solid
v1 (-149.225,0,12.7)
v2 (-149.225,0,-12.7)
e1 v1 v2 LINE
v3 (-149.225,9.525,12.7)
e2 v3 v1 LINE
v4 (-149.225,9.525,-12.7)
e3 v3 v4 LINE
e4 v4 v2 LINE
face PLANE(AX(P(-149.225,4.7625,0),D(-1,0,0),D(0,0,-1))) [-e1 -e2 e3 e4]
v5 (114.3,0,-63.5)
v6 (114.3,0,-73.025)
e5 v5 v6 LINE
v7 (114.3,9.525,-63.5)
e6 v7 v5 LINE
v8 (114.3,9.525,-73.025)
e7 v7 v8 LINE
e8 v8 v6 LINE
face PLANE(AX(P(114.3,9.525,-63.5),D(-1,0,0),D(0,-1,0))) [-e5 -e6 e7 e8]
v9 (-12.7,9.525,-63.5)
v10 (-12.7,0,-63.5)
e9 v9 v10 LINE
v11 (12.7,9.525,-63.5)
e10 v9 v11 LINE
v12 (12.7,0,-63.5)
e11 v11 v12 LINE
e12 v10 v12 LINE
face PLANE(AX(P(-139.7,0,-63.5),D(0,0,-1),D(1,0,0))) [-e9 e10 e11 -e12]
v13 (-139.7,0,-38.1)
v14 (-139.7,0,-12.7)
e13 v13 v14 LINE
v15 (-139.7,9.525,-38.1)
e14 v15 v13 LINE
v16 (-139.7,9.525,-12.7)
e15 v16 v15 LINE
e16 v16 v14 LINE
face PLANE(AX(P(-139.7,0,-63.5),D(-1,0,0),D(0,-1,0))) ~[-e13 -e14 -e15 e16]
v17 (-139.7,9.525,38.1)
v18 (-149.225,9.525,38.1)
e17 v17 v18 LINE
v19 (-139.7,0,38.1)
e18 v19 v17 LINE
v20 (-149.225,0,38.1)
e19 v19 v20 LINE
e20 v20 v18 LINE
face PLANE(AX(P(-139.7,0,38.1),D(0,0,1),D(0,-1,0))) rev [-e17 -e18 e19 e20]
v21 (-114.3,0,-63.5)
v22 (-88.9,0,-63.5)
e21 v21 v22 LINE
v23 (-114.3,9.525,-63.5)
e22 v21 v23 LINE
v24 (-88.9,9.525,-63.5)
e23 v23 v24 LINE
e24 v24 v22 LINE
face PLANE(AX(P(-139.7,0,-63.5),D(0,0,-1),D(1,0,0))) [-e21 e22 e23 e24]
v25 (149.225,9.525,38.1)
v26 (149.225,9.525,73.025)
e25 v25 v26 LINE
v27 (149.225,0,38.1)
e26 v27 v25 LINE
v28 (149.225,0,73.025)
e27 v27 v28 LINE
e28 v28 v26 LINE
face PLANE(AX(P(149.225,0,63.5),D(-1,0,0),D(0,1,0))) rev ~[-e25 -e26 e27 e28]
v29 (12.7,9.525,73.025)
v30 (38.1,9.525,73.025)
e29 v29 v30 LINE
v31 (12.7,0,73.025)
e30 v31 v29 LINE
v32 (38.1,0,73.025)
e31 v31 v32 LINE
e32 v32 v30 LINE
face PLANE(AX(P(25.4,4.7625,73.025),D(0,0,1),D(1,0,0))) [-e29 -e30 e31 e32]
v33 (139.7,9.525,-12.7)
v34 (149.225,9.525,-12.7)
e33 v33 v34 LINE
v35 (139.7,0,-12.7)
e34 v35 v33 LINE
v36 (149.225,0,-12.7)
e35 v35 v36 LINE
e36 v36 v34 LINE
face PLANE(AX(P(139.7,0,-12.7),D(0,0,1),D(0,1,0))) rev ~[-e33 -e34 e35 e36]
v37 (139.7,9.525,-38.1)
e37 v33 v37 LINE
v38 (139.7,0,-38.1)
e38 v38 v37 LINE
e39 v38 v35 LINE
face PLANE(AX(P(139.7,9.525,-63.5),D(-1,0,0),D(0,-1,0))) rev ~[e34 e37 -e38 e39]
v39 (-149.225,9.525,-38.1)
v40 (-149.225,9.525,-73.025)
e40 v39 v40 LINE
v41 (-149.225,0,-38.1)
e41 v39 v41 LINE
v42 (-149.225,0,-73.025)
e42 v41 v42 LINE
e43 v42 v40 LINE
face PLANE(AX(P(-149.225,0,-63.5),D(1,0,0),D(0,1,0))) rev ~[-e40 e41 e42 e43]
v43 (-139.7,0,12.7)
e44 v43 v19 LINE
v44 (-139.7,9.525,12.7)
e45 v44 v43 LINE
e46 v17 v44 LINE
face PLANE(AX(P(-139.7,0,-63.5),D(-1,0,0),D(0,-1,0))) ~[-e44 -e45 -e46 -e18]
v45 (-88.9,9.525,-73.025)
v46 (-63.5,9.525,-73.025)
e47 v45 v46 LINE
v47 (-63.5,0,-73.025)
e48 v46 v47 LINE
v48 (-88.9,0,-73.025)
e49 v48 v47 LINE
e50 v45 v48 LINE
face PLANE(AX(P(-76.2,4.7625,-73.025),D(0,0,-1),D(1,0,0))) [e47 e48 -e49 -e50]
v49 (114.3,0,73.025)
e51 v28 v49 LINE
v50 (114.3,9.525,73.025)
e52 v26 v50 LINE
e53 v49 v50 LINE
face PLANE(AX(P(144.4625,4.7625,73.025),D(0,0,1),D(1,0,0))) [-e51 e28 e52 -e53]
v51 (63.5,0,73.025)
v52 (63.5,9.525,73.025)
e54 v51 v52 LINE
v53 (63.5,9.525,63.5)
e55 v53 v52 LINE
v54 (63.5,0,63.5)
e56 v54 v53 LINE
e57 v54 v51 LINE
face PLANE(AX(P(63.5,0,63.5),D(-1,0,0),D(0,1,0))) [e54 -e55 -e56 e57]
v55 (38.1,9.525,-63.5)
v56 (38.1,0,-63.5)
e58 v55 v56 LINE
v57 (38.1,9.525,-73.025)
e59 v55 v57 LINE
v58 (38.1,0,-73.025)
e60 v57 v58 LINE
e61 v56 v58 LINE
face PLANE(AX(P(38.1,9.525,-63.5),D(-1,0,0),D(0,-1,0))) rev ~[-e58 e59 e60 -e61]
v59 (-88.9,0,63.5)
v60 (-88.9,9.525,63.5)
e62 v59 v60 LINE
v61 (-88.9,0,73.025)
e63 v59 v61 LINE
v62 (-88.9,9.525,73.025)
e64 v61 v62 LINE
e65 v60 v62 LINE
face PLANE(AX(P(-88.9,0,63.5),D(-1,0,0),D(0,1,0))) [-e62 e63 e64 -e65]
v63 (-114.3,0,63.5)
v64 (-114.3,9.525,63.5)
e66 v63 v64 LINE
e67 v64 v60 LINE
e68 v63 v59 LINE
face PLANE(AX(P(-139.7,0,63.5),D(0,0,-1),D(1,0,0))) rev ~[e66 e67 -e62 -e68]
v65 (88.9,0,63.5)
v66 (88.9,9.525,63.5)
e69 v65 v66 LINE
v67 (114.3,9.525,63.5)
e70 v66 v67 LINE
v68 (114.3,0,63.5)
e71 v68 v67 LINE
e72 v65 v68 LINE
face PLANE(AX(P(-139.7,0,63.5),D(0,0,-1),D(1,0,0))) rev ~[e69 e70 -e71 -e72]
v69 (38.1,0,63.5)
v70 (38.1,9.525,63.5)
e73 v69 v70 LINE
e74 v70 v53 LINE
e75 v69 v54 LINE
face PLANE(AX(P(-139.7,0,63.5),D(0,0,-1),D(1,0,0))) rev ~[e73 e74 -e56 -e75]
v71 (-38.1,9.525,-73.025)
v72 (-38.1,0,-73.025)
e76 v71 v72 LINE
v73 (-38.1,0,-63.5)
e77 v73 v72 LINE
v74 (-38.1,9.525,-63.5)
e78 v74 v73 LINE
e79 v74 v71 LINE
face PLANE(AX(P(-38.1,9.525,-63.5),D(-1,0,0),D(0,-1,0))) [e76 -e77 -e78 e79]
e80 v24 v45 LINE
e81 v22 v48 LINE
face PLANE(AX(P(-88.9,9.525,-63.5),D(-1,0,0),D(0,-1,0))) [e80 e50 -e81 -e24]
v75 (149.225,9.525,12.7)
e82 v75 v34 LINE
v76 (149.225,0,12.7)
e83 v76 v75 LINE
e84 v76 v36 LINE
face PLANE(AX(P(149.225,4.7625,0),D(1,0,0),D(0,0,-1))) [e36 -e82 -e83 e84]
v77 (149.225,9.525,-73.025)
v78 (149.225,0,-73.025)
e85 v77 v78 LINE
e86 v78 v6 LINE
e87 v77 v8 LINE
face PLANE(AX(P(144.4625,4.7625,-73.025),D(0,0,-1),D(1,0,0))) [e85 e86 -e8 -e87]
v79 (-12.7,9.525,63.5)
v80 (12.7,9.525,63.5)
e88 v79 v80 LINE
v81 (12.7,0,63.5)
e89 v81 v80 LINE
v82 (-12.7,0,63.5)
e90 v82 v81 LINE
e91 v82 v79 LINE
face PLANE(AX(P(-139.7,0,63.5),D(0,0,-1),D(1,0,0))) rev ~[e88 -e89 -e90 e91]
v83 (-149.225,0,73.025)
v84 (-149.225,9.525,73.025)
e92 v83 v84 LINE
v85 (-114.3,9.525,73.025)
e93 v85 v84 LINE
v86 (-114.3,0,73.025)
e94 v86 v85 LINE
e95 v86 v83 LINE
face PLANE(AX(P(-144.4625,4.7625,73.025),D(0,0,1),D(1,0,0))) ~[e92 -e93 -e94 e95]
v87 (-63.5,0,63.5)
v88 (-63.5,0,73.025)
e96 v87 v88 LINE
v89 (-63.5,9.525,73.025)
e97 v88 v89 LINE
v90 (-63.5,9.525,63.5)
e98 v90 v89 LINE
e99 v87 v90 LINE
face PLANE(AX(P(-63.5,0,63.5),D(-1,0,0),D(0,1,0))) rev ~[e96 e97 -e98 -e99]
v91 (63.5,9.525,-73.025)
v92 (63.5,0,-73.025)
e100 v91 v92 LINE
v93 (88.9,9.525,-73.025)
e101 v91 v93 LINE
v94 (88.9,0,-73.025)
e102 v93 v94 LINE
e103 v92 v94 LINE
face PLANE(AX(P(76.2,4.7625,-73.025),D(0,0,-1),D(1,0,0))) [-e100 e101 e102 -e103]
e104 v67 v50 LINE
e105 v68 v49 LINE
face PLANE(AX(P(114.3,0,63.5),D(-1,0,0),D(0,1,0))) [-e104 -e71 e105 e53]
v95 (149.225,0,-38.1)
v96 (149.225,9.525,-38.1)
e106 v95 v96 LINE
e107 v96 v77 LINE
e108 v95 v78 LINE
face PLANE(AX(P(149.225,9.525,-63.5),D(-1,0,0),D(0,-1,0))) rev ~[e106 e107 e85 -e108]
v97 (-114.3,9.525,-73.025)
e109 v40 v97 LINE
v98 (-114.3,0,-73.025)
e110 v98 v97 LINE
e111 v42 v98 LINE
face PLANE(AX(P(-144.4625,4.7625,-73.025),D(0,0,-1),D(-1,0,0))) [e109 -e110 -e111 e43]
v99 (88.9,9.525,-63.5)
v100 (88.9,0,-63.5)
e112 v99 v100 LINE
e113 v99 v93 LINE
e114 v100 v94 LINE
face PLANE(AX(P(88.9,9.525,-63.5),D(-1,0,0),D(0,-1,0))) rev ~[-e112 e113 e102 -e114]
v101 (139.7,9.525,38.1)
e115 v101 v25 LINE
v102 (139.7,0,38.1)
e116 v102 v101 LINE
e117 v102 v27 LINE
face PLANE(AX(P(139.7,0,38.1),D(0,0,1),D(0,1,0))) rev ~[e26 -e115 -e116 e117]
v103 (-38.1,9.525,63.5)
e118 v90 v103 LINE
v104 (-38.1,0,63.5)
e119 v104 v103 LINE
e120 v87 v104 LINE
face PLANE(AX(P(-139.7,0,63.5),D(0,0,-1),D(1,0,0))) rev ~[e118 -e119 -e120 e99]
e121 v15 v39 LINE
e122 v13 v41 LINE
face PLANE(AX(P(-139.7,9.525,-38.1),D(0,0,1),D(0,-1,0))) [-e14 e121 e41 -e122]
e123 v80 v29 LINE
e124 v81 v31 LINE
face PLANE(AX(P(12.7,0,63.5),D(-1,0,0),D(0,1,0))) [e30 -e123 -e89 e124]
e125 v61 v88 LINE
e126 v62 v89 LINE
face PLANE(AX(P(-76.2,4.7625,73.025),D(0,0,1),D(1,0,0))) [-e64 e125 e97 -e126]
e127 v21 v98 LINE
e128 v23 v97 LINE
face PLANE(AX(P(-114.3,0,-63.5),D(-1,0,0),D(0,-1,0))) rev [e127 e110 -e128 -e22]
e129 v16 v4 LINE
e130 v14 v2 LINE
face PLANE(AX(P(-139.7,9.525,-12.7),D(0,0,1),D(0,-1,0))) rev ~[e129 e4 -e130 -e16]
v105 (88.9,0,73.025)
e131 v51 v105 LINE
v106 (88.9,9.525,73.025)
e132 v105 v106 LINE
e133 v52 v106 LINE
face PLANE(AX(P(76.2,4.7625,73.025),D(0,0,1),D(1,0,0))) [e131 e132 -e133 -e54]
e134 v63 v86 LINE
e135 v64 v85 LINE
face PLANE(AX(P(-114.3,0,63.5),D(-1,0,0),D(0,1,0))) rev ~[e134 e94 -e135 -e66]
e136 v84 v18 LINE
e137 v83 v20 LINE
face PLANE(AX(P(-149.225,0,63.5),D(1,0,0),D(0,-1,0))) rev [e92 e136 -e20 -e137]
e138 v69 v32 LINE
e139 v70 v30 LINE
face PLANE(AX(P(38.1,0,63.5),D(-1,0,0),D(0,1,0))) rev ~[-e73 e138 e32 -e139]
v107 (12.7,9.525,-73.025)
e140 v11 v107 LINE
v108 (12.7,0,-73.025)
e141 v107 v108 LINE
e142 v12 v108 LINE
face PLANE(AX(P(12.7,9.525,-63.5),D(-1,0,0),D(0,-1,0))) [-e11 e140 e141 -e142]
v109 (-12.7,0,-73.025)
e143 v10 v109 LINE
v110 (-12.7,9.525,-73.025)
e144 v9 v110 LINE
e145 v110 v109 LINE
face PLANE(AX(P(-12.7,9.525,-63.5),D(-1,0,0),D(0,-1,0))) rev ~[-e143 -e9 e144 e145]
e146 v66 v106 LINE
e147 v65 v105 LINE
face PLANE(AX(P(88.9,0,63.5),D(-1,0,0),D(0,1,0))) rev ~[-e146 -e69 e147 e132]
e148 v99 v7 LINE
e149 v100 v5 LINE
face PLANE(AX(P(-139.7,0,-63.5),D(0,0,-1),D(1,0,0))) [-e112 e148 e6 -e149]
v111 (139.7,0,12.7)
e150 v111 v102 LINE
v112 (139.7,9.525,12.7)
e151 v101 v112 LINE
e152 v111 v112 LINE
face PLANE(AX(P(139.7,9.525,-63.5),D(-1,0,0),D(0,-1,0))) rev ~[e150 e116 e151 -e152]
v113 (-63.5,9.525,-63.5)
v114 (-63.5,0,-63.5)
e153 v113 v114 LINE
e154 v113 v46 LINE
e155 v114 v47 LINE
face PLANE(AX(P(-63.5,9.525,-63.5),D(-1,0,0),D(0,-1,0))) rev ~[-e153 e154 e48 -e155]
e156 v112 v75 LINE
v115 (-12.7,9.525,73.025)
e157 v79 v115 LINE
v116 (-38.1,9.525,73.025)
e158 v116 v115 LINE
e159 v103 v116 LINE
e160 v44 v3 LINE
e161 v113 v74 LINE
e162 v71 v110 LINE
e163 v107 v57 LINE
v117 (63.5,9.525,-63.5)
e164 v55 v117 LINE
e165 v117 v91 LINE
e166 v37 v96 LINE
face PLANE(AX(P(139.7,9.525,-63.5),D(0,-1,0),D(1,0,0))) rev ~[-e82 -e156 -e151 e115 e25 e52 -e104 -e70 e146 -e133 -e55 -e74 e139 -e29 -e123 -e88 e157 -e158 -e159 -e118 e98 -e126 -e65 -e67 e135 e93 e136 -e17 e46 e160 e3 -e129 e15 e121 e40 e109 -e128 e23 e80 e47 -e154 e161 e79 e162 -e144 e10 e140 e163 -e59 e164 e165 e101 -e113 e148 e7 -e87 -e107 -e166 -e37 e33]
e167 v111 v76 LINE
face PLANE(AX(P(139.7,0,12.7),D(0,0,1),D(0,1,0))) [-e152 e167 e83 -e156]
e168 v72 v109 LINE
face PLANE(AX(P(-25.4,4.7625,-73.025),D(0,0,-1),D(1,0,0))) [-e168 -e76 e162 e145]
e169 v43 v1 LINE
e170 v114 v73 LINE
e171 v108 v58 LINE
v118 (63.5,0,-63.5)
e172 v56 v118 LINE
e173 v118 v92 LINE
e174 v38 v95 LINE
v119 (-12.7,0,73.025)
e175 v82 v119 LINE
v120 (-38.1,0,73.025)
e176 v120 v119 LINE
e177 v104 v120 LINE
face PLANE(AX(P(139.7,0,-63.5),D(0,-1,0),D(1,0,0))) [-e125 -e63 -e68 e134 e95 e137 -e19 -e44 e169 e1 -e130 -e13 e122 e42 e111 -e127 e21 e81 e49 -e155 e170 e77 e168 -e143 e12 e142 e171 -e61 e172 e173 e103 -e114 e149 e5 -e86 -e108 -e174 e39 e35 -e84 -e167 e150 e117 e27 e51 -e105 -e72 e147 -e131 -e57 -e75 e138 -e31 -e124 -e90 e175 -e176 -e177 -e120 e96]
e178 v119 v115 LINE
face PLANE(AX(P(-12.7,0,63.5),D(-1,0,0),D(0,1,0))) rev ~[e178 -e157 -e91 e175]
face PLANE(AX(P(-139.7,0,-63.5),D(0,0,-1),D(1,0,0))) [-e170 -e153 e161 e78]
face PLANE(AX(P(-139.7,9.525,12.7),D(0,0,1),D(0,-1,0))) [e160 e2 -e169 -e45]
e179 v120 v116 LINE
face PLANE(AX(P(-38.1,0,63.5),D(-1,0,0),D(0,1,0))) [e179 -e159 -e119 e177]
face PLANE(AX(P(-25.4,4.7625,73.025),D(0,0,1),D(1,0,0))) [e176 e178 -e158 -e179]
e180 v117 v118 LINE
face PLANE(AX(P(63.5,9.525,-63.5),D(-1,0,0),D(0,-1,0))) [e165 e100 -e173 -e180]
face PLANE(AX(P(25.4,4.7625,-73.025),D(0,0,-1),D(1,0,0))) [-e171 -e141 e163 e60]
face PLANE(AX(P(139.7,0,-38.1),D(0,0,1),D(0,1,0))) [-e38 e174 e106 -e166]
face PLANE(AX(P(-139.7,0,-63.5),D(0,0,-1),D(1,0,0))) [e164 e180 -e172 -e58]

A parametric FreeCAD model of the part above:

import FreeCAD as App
import Part
import Sketcher

V = App.Vector
Q = App.Units.Quantity

doc = App.newDocument("Part")
params = doc.addObject("Spreadsheet::Sheet", "Params")
for row, (alias, value) in enumerate([
    ("sketch1_width", "11 in"),
    ("sketch1_height", "5 in"),
    ("pad1_length", "0.375 in"),
    ("sketch2_width", "1 in"),
    ("sketch2_height", "0.375 in"),
    ("pad2_length", "0.375 in"),
    ("linearpattern_pitch", "2 in"),
    ("sketch3_width", "1 in"),
    ("sketch3_height", "0.375 in"),
    ("pad3_length", "0.375 in"),
    ("sketch4_width", "1 in"),
    ("sketch4_height", "0.375 in"),
    ("pad4_length", "0.375 in"),
    ("sketch5_width", "1 in"),
    ("sketch5_height", "0.375 in"),
    ("pad5_length", "0.375 in"),
    ("sketch6_width", "1 in"),
    ("sketch6_height", "0.375 in"),
    ("pad6_length", "0.375 in"),
    ("sketch7_width", "1 in"),
    ("sketch7_height", "0.375 in"),
    ("pad7_length", "0.375 in"),
    ("sketch8_height", "1 in"),
    ("sketch8_width", "0.375 in"),
    ("pad8_length", "0.375 in"),
    ("linearpattern2_pitch", "2 in"),
    ("sketch9_height", "1 in"),
    ("sketch9_width", "0.375 in"),
    ("pad9_length", "0.375 in"),
    ("sketch10_height", "1 in"),
    ("sketch10_width", "0.375 in"),
    ("pad10_length", "0.375 in"),
    ("sketch11_width", "0.375 in"),
    ("pad11_length", "0.375 in"),
    ("sketch12_width", "0.375 in"),
    ("pad12_length", "0.375 in"),
    ("sketch13_width", "0.375 in"),
    ("pad13_length", "0.375 in"),
], start=1):
    params.set(f"A{row}", alias)
    params.set(f"B{row}", "=" + value)
    params.setAlias(f"B{row}", alias)

body = doc.addObject("PartDesign::Body", "Body")

# Sketch on XZ plane
sketch1 = body.newObject("Sketcher::SketchObject", "Sketch")
sketch1.AttachmentSupport = (doc.getObject("XZ_Plane"), [""])
sketch1.MapMode = "FlatFace"
sketch1.addGeometry(Part.LineSegment(V(-139.7, -63.5, 0), V(-139.7, 63.5, 0)), False)
sketch1.addGeometry(Part.LineSegment(V(-139.7, 63.5, 0), V(139.7, 63.5, 0)), False)
sketch1.addGeometry(Part.LineSegment(V(139.7, 63.5, 0), V(139.7, -63.5, 0)), False)
sketch1.addGeometry(Part.LineSegment(V(139.7, -63.5, 0), V(-139.7, -63.5, 0)), False)
sketch1.addConstraint(Sketcher.Constraint("Coincident", 0, 2, 1, 1))
sketch1.addConstraint(Sketcher.Constraint("Coincident", 1, 2, 2, 1))
sketch1.addConstraint(Sketcher.Constraint("Coincident", 2, 2, 3, 1))
sketch1.addConstraint(Sketcher.Constraint("Coincident", 3, 2, 0, 1))
sketch1.addConstraint(Sketcher.Constraint("Vertical", 0))
sketch1.addConstraint(Sketcher.Constraint("Horizontal", 1))
sketch1.addConstraint(Sketcher.Constraint("Vertical", 2))
sketch1.addConstraint(Sketcher.Constraint("Horizontal", 3))
sketch1.addConstraint(Sketcher.Constraint("Symmetric", 0, 2, 2, 2, -1, 1))
sketch1.addConstraint(Sketcher.Constraint("DistanceX", 1, 1, 1, 2, Q("11 in")))
sketch1.addConstraint(Sketcher.Constraint("DistanceY", 0, 1, 0, 2, Q("5 in")))
sketch1.setExpression("Constraints[9]", "Params.sketch1_width")
sketch1.setExpression("Constraints[10]", "Params.sketch1_height")
pad1 = body.newObject("PartDesign::Pad", "Pad")
pad1.Profile = sketch1
pad1.setExpression("Length", "Params.pad1_length")
pad1.Reversed = True

# Sketch on XY plane
sketch2 = body.newObject("Sketcher::SketchObject", "Sketch001")
sketch2.AttachmentSupport = (doc.getObject("XY_Plane"), [""])
sketch2.MapMode = "FlatFace"
sketch2.AttachmentOffset = App.Placement(V(0, 0, 2.5 * 25.4), App.Rotation())
sketch2.addGeometry(Part.LineSegment(V(-139.7, 9.525, 0), V(-139.7, 0, 0)), False)
sketch2.addGeometry(Part.LineSegment(V(-139.7, 0, 0), V(-114.3, 0, 0)), False)
sketch2.addGeometry(Part.LineSegment(V(-114.3, 0, 0), V(-114.3, 9.525, 0)), False)
sketch2.addGeometry(Part.LineSegment(V(-114.3, 9.525, 0), V(-139.7, 9.525, 0)), False)
sketch2.addConstraint(Sketcher.Constraint("Coincident", 0, 2, 1, 1))
sketch2.addConstraint(Sketcher.Constraint("Coincident", 1, 2, 2, 1))
sketch2.addConstraint(Sketcher.Constraint("Coincident", 2, 2, 3, 1))
sketch2.addConstraint(Sketcher.Constraint("Coincident", 3, 2, 0, 1))
sketch2.addConstraint(Sketcher.Constraint("Vertical", 0))
sketch2.addConstraint(Sketcher.Constraint("Horizontal", 1))
sketch2.addConstraint(Sketcher.Constraint("Vertical", 2))
sketch2.addConstraint(Sketcher.Constraint("Horizontal", 3))
sketch2.addConstraint(Sketcher.Constraint("PointOnObject", 0, 2, -1))
sketch2.addConstraint(Sketcher.Constraint("DistanceX", 1, 1, 1, 2, Q("1 in")))
sketch2.addConstraint(Sketcher.Constraint("DistanceX", 0, 2, -1, 1, Q("5.5 in")))
sketch2.addConstraint(Sketcher.Constraint("DistanceY", 0, 2, 0, 1, Q("0.375 in")))
sketch2.setExpression("Constraints[9]", "Params.sketch2_width")
sketch2.setExpression("Constraints[11]", "Params.sketch2_height")
pad2 = body.newObject("PartDesign::Pad", "Pad001")
pad2.Profile = sketch2
pad2.setExpression("Length", "Params.pad2_length")
doc.recompute()

linearpattern = body.newObject("PartDesign::LinearPattern", "LinearPattern")
linearpattern.Originals = [pad2]
linearpattern.Direction = (doc.getObject("X_Axis"), [""])
linearpattern.Mode = "offset"
linearpattern.setExpression("Offset", "Params.linearpattern_pitch")
linearpattern.Occurrences = 6
body.Tip = linearpattern
doc.recompute()

mirrored = body.newObject("PartDesign::Mirrored", "Mirrored")
mirrored.Originals = [pad2]
mirrored.MirrorPlane = (doc.getObject("XY_Plane"), [""])
body.Tip = mirrored

# Sketch on XY plane
sketch3 = body.newObject("Sketcher::SketchObject", "Sketch002")
sketch3.AttachmentSupport = (doc.getObject("XY_Plane"), [""])
sketch3.MapMode = "FlatFace"
sketch3.AttachmentOffset = App.Placement(V(0, 0, -2.5 * 25.4), App.Rotation())
sketch3.addGeometry(Part.LineSegment(V(-88.9, 0, 0), V(-88.9, 9.525, 0)), False)
sketch3.addGeometry(Part.LineSegment(V(-88.9, 9.525, 0), V(-63.5, 9.525, 0)), False)
sketch3.addGeometry(Part.LineSegment(V(-63.5, 9.525, 0), V(-63.5, 0, 0)), False)
sketch3.addGeometry(Part.LineSegment(V(-63.5, 0, 0), V(-88.9, 0, 0)), False)
sketch3.addConstraint(Sketcher.Constraint("Coincident", 0, 2, 1, 1))
sketch3.addConstraint(Sketcher.Constraint("Coincident", 1, 2, 2, 1))
sketch3.addConstraint(Sketcher.Constraint("Coincident", 2, 2, 3, 1))
sketch3.addConstraint(Sketcher.Constraint("Coincident", 3, 2, 0, 1))
sketch3.addConstraint(Sketcher.Constraint("Vertical", 0))
sketch3.addConstraint(Sketcher.Constraint("Horizontal", 1))
sketch3.addConstraint(Sketcher.Constraint("Vertical", 2))
sketch3.addConstraint(Sketcher.Constraint("Horizontal", 3))
sketch3.addConstraint(Sketcher.Constraint("PointOnObject", 2, 2, -1))
sketch3.addConstraint(Sketcher.Constraint("DistanceX", 1, 1, 1, 2, Q("1 in")))
sketch3.addConstraint(Sketcher.Constraint("DistanceX", 0, 2, -1, 1, Q("3.5 in")))
sketch3.addConstraint(Sketcher.Constraint("DistanceY", 0, 1, 0, 2, Q("0.375 in")))
sketch3.setExpression("Constraints[9]", "Params.sketch3_width")
sketch3.setExpression("Constraints[11]", "Params.sketch3_height")
pad3 = body.newObject("PartDesign::Pad", "Pad002")
pad3.Profile = sketch3
pad3.setExpression("Length", "Params.pad3_length")
pad3.Reversed = True

# Sketch on XY plane
sketch4 = body.newObject("Sketcher::SketchObject", "Sketch003")
sketch4.AttachmentSupport = (doc.getObject("XY_Plane"), [""])
sketch4.MapMode = "FlatFace"
sketch4.AttachmentOffset = App.Placement(V(0, 0, -2.5 * 25.4), App.Rotation())
sketch4.addGeometry(Part.LineSegment(V(-38.1, 0, 0), V(-38.1, 9.525, 0)), False)
sketch4.addGeometry(Part.LineSegment(V(-38.1, 9.525, 0), V(-12.7, 9.525, 0)), False)
sketch4.addGeometry(Part.LineSegment(V(-12.7, 9.525, 0), V(-12.7, 0, 0)), False)
sketch4.addGeometry(Part.LineSegment(V(-12.7, 0, 0), V(-38.1, 0, 0)), False)
sketch4.addConstraint(Sketcher.Constraint("Coincident", 0, 2, 1, 1))
sketch4.addConstraint(Sketcher.Constraint("Coincident", 1, 2, 2, 1))
sketch4.addConstraint(Sketcher.Constraint("Coincident", 2, 2, 3, 1))
sketch4.addConstraint(Sketcher.Constraint("Coincident", 3, 2, 0, 1))
sketch4.addConstraint(Sketcher.Constraint("Vertical", 0))
sketch4.addConstraint(Sketcher.Constraint("Horizontal", 1))
sketch4.addConstraint(Sketcher.Constraint("Vertical", 2))
sketch4.addConstraint(Sketcher.Constraint("Horizontal", 3))
sketch4.addConstraint(Sketcher.Constraint("PointOnObject", 2, 2, -1))
sketch4.addConstraint(Sketcher.Constraint("DistanceX", 1, 1, 1, 2, Q("1 in")))
sketch4.addConstraint(Sketcher.Constraint("DistanceX", 0, 2, -1, 1, Q("1.5 in")))
sketch4.addConstraint(Sketcher.Constraint("DistanceY", 0, 1, 0, 2, Q("0.375 in")))
sketch4.setExpression("Constraints[9]", "Params.sketch4_width")
sketch4.setExpression("Constraints[11]", "Params.sketch4_height")
pad4 = body.newObject("PartDesign::Pad", "Pad003")
pad4.Profile = sketch4
pad4.setExpression("Length", "Params.pad4_length")
pad4.Reversed = True

# Sketch on XY plane
sketch5 = body.newObject("Sketcher::SketchObject", "Sketch004")
sketch5.AttachmentSupport = (doc.getObject("XY_Plane"), [""])
sketch5.MapMode = "FlatFace"
sketch5.AttachmentOffset = App.Placement(V(0, 0, -2.5 * 25.4), App.Rotation())
sketch5.addGeometry(Part.LineSegment(V(12.7, 0, 0), V(12.7, 9.525, 0)), False)
sketch5.addGeometry(Part.LineSegment(V(12.7, 9.525, 0), V(38.1, 9.525, 0)), False)
sketch5.addGeometry(Part.LineSegment(V(38.1, 9.525, 0), V(38.1, 0, 0)), False)
sketch5.addGeometry(Part.LineSegment(V(38.1, 0, 0), V(12.7, 0, 0)), False)
sketch5.addConstraint(Sketcher.Constraint("Coincident", 0, 2, 1, 1))
sketch5.addConstraint(Sketcher.Constraint("Coincident", 1, 2, 2, 1))
sketch5.addConstraint(Sketcher.Constraint("Coincident", 2, 2, 3, 1))
sketch5.addConstraint(Sketcher.Constraint("Coincident", 3, 2, 0, 1))
sketch5.addConstraint(Sketcher.Constraint("Vertical", 0))
sketch5.addConstraint(Sketcher.Constraint("Horizontal", 1))
sketch5.addConstraint(Sketcher.Constraint("Vertical", 2))
sketch5.addConstraint(Sketcher.Constraint("Horizontal", 3))
sketch5.addConstraint(Sketcher.Constraint("PointOnObject", 2, 2, -1))
sketch5.addConstraint(Sketcher.Constraint("DistanceX", 1, 1, 1, 2, Q("1 in")))
sketch5.addConstraint(Sketcher.Constraint("DistanceX", -1, 1, 0, 2, Q("0.5 in")))
sketch5.addConstraint(Sketcher.Constraint("DistanceY", 0, 1, 0, 2, Q("0.375 in")))
sketch5.setExpression("Constraints[9]", "Params.sketch5_width")
sketch5.setExpression("Constraints[11]", "Params.sketch5_height")
pad5 = body.newObject("PartDesign::Pad", "Pad004")
pad5.Profile = sketch5
pad5.setExpression("Length", "Params.pad5_length")
pad5.Reversed = True

# Sketch on XY plane
sketch6 = body.newObject("Sketcher::SketchObject", "Sketch005")
sketch6.AttachmentSupport = (doc.getObject("XY_Plane"), [""])
sketch6.MapMode = "FlatFace"
sketch6.AttachmentOffset = App.Placement(V(0, 0, -2.5 * 25.4), App.Rotation())
sketch6.addGeometry(Part.LineSegment(V(63.5, 0, 0), V(63.5, 9.525, 0)), False)
sketch6.addGeometry(Part.LineSegment(V(63.5, 9.525, 0), V(88.9, 9.525, 0)), False)
sketch6.addGeometry(Part.LineSegment(V(88.9, 9.525, 0), V(88.9, 0, 0)), False)
sketch6.addGeometry(Part.LineSegment(V(88.9, 0, 0), V(63.5, 0, 0)), False)
sketch6.addConstraint(Sketcher.Constraint("Coincident", 0, 2, 1, 1))
sketch6.addConstraint(Sketcher.Constraint("Coincident", 1, 2, 2, 1))
sketch6.addConstraint(Sketcher.Constraint("Coincident", 2, 2, 3, 1))
sketch6.addConstraint(Sketcher.Constraint("Coincident", 3, 2, 0, 1))
sketch6.addConstraint(Sketcher.Constraint("Vertical", 0))
sketch6.addConstraint(Sketcher.Constraint("Horizontal", 1))
sketch6.addConstraint(Sketcher.Constraint("Vertical", 2))
sketch6.addConstraint(Sketcher.Constraint("Horizontal", 3))
sketch6.addConstraint(Sketcher.Constraint("PointOnObject", 2, 2, -1))
sketch6.addConstraint(Sketcher.Constraint("DistanceX", 1, 1, 1, 2, Q("1 in")))
sketch6.addConstraint(Sketcher.Constraint("DistanceX", -1, 1, 0, 2, Q("2.5 in")))
sketch6.addConstraint(Sketcher.Constraint("DistanceY", 0, 1, 0, 2, Q("0.375 in")))
sketch6.setExpression("Constraints[9]", "Params.sketch6_width")
sketch6.setExpression("Constraints[11]", "Params.sketch6_height")
pad6 = body.newObject("PartDesign::Pad", "Pad005")
pad6.Profile = sketch6
pad6.setExpression("Length", "Params.pad6_length")
pad6.Reversed = True

# Sketch on XY plane
sketch7 = body.newObject("Sketcher::SketchObject", "Sketch006")
sketch7.AttachmentSupport = (doc.getObject("XY_Plane"), [""])
sketch7.MapMode = "FlatFace"
sketch7.AttachmentOffset = App.Placement(V(0, 0, -2.5 * 25.4), App.Rotation())
sketch7.addGeometry(Part.LineSegment(V(114.3, 0, 0), V(114.3, 9.525, 0)), False)
sketch7.addGeometry(Part.LineSegment(V(114.3, 9.525, 0), V(139.7, 9.525, 0)), False)
sketch7.addGeometry(Part.LineSegment(V(139.7, 9.525, 0), V(139.7, 0, 0)), False)
sketch7.addGeometry(Part.LineSegment(V(139.7, 0, 0), V(114.3, 0, 0)), False)
sketch7.addConstraint(Sketcher.Constraint("Coincident", 0, 2, 1, 1))
sketch7.addConstraint(Sketcher.Constraint("Coincident", 1, 2, 2, 1))
sketch7.addConstraint(Sketcher.Constraint("Coincident", 2, 2, 3, 1))
sketch7.addConstraint(Sketcher.Constraint("Coincident", 3, 2, 0, 1))
sketch7.addConstraint(Sketcher.Constraint("Vertical", 0))
sketch7.addConstraint(Sketcher.Constraint("Horizontal", 1))
sketch7.addConstraint(Sketcher.Constraint("Vertical", 2))
sketch7.addConstraint(Sketcher.Constraint("Horizontal", 3))
sketch7.addConstraint(Sketcher.Constraint("PointOnObject", 2, 2, -1))
sketch7.addConstraint(Sketcher.Constraint("DistanceX", 1, 1, 1, 2, Q("1 in")))
sketch7.addConstraint(Sketcher.Constraint("DistanceX", -1, 1, 0, 2, Q("4.5 in")))
sketch7.addConstraint(Sketcher.Constraint("DistanceY", 0, 1, 0, 2, Q("0.375 in")))
sketch7.setExpression("Constraints[9]", "Params.sketch7_width")
sketch7.setExpression("Constraints[11]", "Params.sketch7_height")
pad7 = body.newObject("PartDesign::Pad", "Pad006")
pad7.Profile = sketch7
pad7.setExpression("Length", "Params.pad7_length")
pad7.Reversed = True

# Sketch on YZ plane
sketch8 = body.newObject("Sketcher::SketchObject", "Sketch007")
sketch8.AttachmentSupport = (doc.getObject("YZ_Plane"), [""])
sketch8.MapMode = "FlatFace"
sketch8.AttachmentOffset = App.Placement(V(0, 0, 5.5 * 25.4), App.Rotation())
sketch8.addGeometry(Part.LineSegment(V(9.525, 63.5, 0), V(0, 63.5, 0)), False)
sketch8.addGeometry(Part.LineSegment(V(0, 63.5, 0), V(0, 38.1, 0)), False)
sketch8.addGeometry(Part.LineSegment(V(0, 38.1, 0), V(9.525, 38.1, 0)), False)
sketch8.addGeometry(Part.LineSegment(V(9.525, 38.1, 0), V(9.525, 63.5, 0)), False)
sketch8.addConstraint(Sketcher.Constraint("Coincident", 0, 2, 1, 1))
sketch8.addConstraint(Sketcher.Constraint("Coincident", 1, 2, 2, 1))
sketch8.addConstraint(Sketcher.Constraint("Coincident", 2, 2, 3, 1))
sketch8.addConstraint(Sketcher.Constraint("Coincident", 3, 2, 0, 1))
sketch8.addConstraint(Sketcher.Constraint("Horizontal", 0))
sketch8.addConstraint(Sketcher.Constraint("Vertical", 1))
sketch8.addConstraint(Sketcher.Constraint("Horizontal", 2))
sketch8.addConstraint(Sketcher.Constraint("Vertical", 3))
sketch8.addConstraint(Sketcher.Constraint("PointOnObject", 0, 2, -2))
sketch8.addConstraint(Sketcher.Constraint("DistanceY", 1, 2, 1, 1, Q("1 in")))
sketch8.addConstraint(Sketcher.Constraint("DistanceY", -1, 1, 0, 2, Q("2.5 in")))
sketch8.addConstraint(Sketcher.Constraint("DistanceX", 0, 2, 0, 1, Q("0.375 in")))
sketch8.setExpression("Constraints[9]", "Params.sketch8_height")
sketch8.setExpression("Constraints[11]", "Params.sketch8_width")
pad8 = body.newObject("PartDesign::Pad", "Pad007")
pad8.Profile = sketch8
pad8.setExpression("Length", "Params.pad8_length")
doc.recompute()

linearpattern2 = body.newObject("PartDesign::LinearPattern", "LinearPattern001")
linearpattern2.Originals = [pad8]
linearpattern2.Direction = (doc.getObject("Z_Axis"), [""])
linearpattern2.Mode = "offset"
linearpattern2.setExpression("Offset", "Params.linearpattern2_pitch")
linearpattern2.Occurrences = 3
linearpattern2.Reversed = True
body.Tip = linearpattern2
doc.recompute()

mirrored2 = body.newObject("PartDesign::Mirrored", "Mirrored001")
mirrored2.Originals = [pad8]
mirrored2.MirrorPlane = (doc.getObject("YZ_Plane"), [""])
body.Tip = mirrored2

# Sketch on YZ plane
sketch9 = body.newObject("Sketcher::SketchObject", "Sketch008")
sketch9.AttachmentSupport = (doc.getObject("YZ_Plane"), [""])
sketch9.MapMode = "FlatFace"
sketch9.AttachmentOffset = App.Placement(V(0, 0, -5.5 * 25.4), App.Rotation())
sketch9.addGeometry(Part.LineSegment(V(0, 12.7, 0), V(9.525, 12.7, 0)), False)
sketch9.addGeometry(Part.LineSegment(V(9.525, 12.7, 0), V(9.525, -12.7, 0)), False)
sketch9.addGeometry(Part.LineSegment(V(9.525, -12.7, 0), V(0, -12.7, 0)), False)
sketch9.addGeometry(Part.LineSegment(V(0, -12.7, 0), V(0, 12.7, 0)), False)
sketch9.addConstraint(Sketcher.Constraint("Coincident", 0, 2, 1, 1))
sketch9.addConstraint(Sketcher.Constraint("Coincident", 1, 2, 2, 1))
sketch9.addConstraint(Sketcher.Constraint("Coincident", 2, 2, 3, 1))
sketch9.addConstraint(Sketcher.Constraint("Coincident", 3, 2, 0, 1))
sketch9.addConstraint(Sketcher.Constraint("Horizontal", 0))
sketch9.addConstraint(Sketcher.Constraint("Vertical", 1))
sketch9.addConstraint(Sketcher.Constraint("Horizontal", 2))
sketch9.addConstraint(Sketcher.Constraint("Vertical", 3))
sketch9.addConstraint(Sketcher.Constraint("Symmetric", 2, 2, 3, 2, -1, 1))
sketch9.addConstraint(Sketcher.Constraint("DistanceY", 1, 2, 1, 1, Q("1 in")))
sketch9.addConstraint(Sketcher.Constraint("DistanceX", 0, 1, 0, 2, Q("0.375 in")))
sketch9.setExpression("Constraints[9]", "Params.sketch9_height")
sketch9.setExpression("Constraints[10]", "Params.sketch9_width")
pad9 = body.newObject("PartDesign::Pad", "Pad008")
pad9.Profile = sketch9
pad9.setExpression("Length", "Params.pad9_length")
pad9.Reversed = True

# Sketch on YZ plane
sketch10 = body.newObject("Sketcher::SketchObject", "Sketch009")
sketch10.AttachmentSupport = (doc.getObject("YZ_Plane"), [""])
sketch10.MapMode = "FlatFace"
sketch10.AttachmentOffset = App.Placement(V(0, 0, -5.5 * 25.4), App.Rotation())
sketch10.addGeometry(Part.LineSegment(V(0, -38.1, 0), V(9.525, -38.1, 0)), False)
sketch10.addGeometry(Part.LineSegment(V(9.525, -38.1, 0), V(9.525, -63.5, 0)), False)
sketch10.addGeometry(Part.LineSegment(V(9.525, -63.5, 0), V(0, -63.5, 0)), False)
sketch10.addGeometry(Part.LineSegment(V(0, -63.5, 0), V(0, -38.1, 0)), False)
sketch10.addConstraint(Sketcher.Constraint("Coincident", 0, 2, 1, 1))
sketch10.addConstraint(Sketcher.Constraint("Coincident", 1, 2, 2, 1))
sketch10.addConstraint(Sketcher.Constraint("Coincident", 2, 2, 3, 1))
sketch10.addConstraint(Sketcher.Constraint("Coincident", 3, 2, 0, 1))
sketch10.addConstraint(Sketcher.Constraint("Horizontal", 0))
sketch10.addConstraint(Sketcher.Constraint("Vertical", 1))
sketch10.addConstraint(Sketcher.Constraint("Horizontal", 2))
sketch10.addConstraint(Sketcher.Constraint("Vertical", 3))
sketch10.addConstraint(Sketcher.Constraint("PointOnObject", 2, 2, -2))
sketch10.addConstraint(Sketcher.Constraint("DistanceY", 1, 2, 1, 1, Q("1 in")))
sketch10.addConstraint(Sketcher.Constraint("DistanceY", 0, 2, -1, 1, Q("1.5 in")))
sketch10.addConstraint(Sketcher.Constraint("DistanceX", 0, 1, 0, 2, Q("0.375 in")))
sketch10.setExpression("Constraints[9]", "Params.sketch10_height")
sketch10.setExpression("Constraints[11]", "Params.sketch10_width")
pad10 = body.newObject("PartDesign::Pad", "Pad009")
pad10.Profile = sketch10
pad10.setExpression("Length", "Params.pad10_length")
pad10.Reversed = True

# Sketch on XY plane
sketch11 = body.newObject("Sketcher::SketchObject", "Sketch010")
sketch11.AttachmentSupport = (doc.getObject("XY_Plane"), [""])
sketch11.MapMode = "FlatFace"
sketch11.AttachmentOffset = App.Placement(V(0, 0, 2.5 * 25.4), App.Rotation())
sketch11.addGeometry(Part.LineSegment(V(139.7, 9.525, 0), V(139.7, 0, 0)), False)
sketch11.addGeometry(Part.LineSegment(V(139.7, 0, 0), V(149.225, 0, 0)), False)
sketch11.addGeometry(Part.LineSegment(V(149.225, 0, 0), V(149.225, 9.525, 0)), False)
sketch11.addGeometry(Part.LineSegment(V(149.225, 9.525, 0), V(139.7, 9.525, 0)), False)
sketch11.addConstraint(Sketcher.Constraint("Coincident", 0, 2, 1, 1))
sketch11.addConstraint(Sketcher.Constraint("Coincident", 1, 2, 2, 1))
sketch11.addConstraint(Sketcher.Constraint("Coincident", 2, 2, 3, 1))
sketch11.addConstraint(Sketcher.Constraint("Coincident", 3, 2, 0, 1))
sketch11.addConstraint(Sketcher.Constraint("Vertical", 0))
sketch11.addConstraint(Sketcher.Constraint("Horizontal", 1))
sketch11.addConstraint(Sketcher.Constraint("Vertical", 2))
sketch11.addConstraint(Sketcher.Constraint("Horizontal", 3))
sketch11.addConstraint(Sketcher.Constraint("PointOnObject", 0, 2, -1))
sketch11.addConstraint(Sketcher.Constraint("Equal", 3, 0))
sketch11.addConstraint(Sketcher.Constraint("DistanceX", -1, 1, 0, 2, Q("5.5 in")))
sketch11.addConstraint(Sketcher.Constraint("DistanceX", 1, 1, 1, 2, Q("0.375 in")))
sketch11.setExpression("Constraints[11]", "Params.sketch11_width")
pad11 = body.newObject("PartDesign::Pad", "Pad010")
pad11.Profile = sketch11
pad11.setExpression("Length", "Params.pad11_length")
doc.recompute()

mirrored3 = body.newObject("PartDesign::Mirrored", "Mirrored002")
mirrored3.Originals = [pad11]
mirrored3.MirrorPlane = (doc.getObject("YZ_Plane"), [""])
body.Tip = mirrored3

# Sketch on XY plane
sketch12 = body.newObject("Sketcher::SketchObject", "Sketch011")
sketch12.AttachmentSupport = (doc.getObject("XY_Plane"), [""])
sketch12.MapMode = "FlatFace"
sketch12.AttachmentOffset = App.Placement(V(0, 0, -2.5 * 25.4), App.Rotation())
sketch12.addGeometry(Part.LineSegment(V(-139.7, 9.525, 0), V(-139.7, 0, 0)), False)
sketch12.addGeometry(Part.LineSegment(V(-139.7, 0, 0), V(-149.225, 0, 0)), False)
sketch12.addGeometry(Part.LineSegment(V(-149.225, 0, 0), V(-149.225, 9.525, 0)), False)
sketch12.addGeometry(Part.LineSegment(V(-149.225, 9.525, 0), V(-139.7, 9.525, 0)), False)
sketch12.addConstraint(Sketcher.Constraint("Coincident", 0, 2, 1, 1))
sketch12.addConstraint(Sketcher.Constraint("Coincident", 1, 2, 2, 1))
sketch12.addConstraint(Sketcher.Constraint("Coincident", 2, 2, 3, 1))
sketch12.addConstraint(Sketcher.Constraint("Coincident", 3, 2, 0, 1))
sketch12.addConstraint(Sketcher.Constraint("Vertical", 0))
sketch12.addConstraint(Sketcher.Constraint("Horizontal", 1))
sketch12.addConstraint(Sketcher.Constraint("Vertical", 2))
sketch12.addConstraint(Sketcher.Constraint("Horizontal", 3))
sketch12.addConstraint(Sketcher.Constraint("PointOnObject", 0, 2, -1))
sketch12.addConstraint(Sketcher.Constraint("Equal", 3, 0))
sketch12.addConstraint(Sketcher.Constraint("DistanceX", 0, 2, -1, 1, Q("5.5 in")))
sketch12.addConstraint(Sketcher.Constraint("DistanceX", 1, 2, 1, 1, Q("0.375 in")))
sketch12.setExpression("Constraints[11]", "Params.sketch12_width")
pad12 = body.newObject("PartDesign::Pad", "Pad011")
pad12.Profile = sketch12
pad12.setExpression("Length", "Params.pad12_length")
pad12.Reversed = True

# Sketch on XY plane
sketch13 = body.newObject("Sketcher::SketchObject", "Sketch012")
sketch13.AttachmentSupport = (doc.getObject("XY_Plane"), [""])
sketch13.MapMode = "FlatFace"
sketch13.AttachmentOffset = App.Placement(V(0, 0, -2.5 * 25.4), App.Rotation())
sketch13.addGeometry(Part.LineSegment(V(139.7, 0, 0), V(139.7, 9.525, 0)), False)
sketch13.addGeometry(Part.LineSegment(V(139.7, 9.525, 0), V(149.225, 9.525, 0)), False)
sketch13.addGeometry(Part.LineSegment(V(149.225, 9.525, 0), V(149.225, 0, 0)), False)
sketch13.addGeometry(Part.LineSegment(V(149.225, 0, 0), V(139.7, 0, 0)), False)
sketch13.addConstraint(Sketcher.Constraint("Coincident", 0, 2, 1, 1))
sketch13.addConstraint(Sketcher.Constraint("Coincident", 1, 2, 2, 1))
sketch13.addConstraint(Sketcher.Constraint("Coincident", 2, 2, 3, 1))
sketch13.addConstraint(Sketcher.Constraint("Coincident", 3, 2, 0, 1))
sketch13.addConstraint(Sketcher.Constraint("Vertical", 0))
sketch13.addConstraint(Sketcher.Constraint("Horizontal", 1))
sketch13.addConstraint(Sketcher.Constraint("Vertical", 2))
sketch13.addConstraint(Sketcher.Constraint("Horizontal", 3))
sketch13.addConstraint(Sketcher.Constraint("PointOnObject", 2, 2, -1))
sketch13.addConstraint(Sketcher.Constraint("Equal", 3, 0))
sketch13.addConstraint(Sketcher.Constraint("DistanceX", -1, 1, 0, 2, Q("5.5 in")))
sketch13.addConstraint(Sketcher.Constraint("DistanceX", 1, 1, 1, 2, Q("0.375 in")))
sketch13.setExpression("Constraints[11]", "Params.sketch13_width")
pad13 = body.newObject("PartDesign::Pad", "Pad012")
pad13.Profile = sketch13
pad13.setExpression("Length", "Params.pad13_length")
pad13.Reversed = True

doc.recompute()
